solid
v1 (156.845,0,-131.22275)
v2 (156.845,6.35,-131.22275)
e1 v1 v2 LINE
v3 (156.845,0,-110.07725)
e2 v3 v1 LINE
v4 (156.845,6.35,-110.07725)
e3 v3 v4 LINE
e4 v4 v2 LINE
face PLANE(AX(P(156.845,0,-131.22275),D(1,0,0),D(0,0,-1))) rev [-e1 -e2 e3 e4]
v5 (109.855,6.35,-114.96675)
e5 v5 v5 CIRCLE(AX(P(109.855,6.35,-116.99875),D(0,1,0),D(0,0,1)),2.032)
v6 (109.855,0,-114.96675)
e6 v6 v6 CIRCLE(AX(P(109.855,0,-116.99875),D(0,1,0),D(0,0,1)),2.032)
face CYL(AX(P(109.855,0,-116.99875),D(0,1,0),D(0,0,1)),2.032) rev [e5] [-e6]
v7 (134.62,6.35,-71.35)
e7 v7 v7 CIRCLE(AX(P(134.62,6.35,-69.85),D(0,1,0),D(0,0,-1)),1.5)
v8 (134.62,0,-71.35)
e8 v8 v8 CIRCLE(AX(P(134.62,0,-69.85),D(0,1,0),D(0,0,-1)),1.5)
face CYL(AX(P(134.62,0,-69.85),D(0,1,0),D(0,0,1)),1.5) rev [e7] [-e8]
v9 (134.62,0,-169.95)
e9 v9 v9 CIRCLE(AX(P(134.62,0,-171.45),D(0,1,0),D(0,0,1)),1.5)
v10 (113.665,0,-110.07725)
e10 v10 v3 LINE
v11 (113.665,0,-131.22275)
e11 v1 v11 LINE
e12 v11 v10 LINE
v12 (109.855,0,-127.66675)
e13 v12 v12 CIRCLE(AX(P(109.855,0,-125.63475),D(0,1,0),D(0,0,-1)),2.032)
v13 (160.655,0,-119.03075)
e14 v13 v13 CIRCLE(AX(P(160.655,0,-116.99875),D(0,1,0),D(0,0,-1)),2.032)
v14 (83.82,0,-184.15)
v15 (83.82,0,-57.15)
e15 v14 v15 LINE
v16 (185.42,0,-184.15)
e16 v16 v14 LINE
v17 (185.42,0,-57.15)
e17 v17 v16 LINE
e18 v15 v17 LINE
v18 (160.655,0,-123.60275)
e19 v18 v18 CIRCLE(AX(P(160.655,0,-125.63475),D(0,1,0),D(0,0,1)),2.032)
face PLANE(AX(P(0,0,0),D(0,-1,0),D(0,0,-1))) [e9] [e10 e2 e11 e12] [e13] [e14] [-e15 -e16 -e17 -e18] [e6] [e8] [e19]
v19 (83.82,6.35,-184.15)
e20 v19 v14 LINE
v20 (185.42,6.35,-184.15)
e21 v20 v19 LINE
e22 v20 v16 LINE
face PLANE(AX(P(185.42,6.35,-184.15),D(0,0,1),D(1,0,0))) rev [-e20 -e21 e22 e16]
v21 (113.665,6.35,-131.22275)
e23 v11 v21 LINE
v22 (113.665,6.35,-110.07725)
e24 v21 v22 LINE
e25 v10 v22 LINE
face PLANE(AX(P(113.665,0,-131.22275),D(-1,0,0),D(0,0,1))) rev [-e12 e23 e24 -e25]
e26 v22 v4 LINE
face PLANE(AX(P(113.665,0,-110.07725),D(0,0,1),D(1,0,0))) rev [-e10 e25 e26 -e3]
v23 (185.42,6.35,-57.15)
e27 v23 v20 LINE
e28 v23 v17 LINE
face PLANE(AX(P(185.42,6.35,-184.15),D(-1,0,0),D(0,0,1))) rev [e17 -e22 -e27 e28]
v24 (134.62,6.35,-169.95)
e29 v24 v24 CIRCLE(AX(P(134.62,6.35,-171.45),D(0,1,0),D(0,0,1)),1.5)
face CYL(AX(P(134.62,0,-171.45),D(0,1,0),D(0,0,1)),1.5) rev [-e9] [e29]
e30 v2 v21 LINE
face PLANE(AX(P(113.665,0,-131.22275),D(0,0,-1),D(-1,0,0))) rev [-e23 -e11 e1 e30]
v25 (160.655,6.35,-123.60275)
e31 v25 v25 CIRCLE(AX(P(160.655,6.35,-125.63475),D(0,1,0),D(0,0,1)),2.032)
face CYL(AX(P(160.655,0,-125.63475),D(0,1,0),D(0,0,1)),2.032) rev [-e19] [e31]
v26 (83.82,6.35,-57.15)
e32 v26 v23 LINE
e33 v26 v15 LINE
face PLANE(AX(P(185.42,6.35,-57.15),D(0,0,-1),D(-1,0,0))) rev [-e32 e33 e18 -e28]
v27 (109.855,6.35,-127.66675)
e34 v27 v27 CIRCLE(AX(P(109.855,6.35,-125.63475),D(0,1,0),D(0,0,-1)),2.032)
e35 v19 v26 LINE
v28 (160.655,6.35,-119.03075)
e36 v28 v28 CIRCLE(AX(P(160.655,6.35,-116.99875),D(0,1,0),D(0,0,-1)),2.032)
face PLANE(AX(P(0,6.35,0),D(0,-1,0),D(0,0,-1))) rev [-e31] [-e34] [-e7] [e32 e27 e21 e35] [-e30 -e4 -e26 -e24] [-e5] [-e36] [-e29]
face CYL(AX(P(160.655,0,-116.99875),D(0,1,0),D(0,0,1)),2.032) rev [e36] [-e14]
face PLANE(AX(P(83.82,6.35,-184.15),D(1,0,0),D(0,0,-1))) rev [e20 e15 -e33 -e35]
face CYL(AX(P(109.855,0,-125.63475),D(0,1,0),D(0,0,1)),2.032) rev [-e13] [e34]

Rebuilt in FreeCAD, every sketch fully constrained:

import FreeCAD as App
import Part
import Sketcher
from FreeCAD import Vector
Q = App.Units.Quantity


def add_polygon(sketch, points):
    """Adds a closed chain of lines whose ends are joined by coincident constraints."""
    first, n = sketch.GeometryCount, len(points)
    for a, b in zip(points, points[1:] + points[:1]):
        sketch.addGeometry(Part.LineSegment(App.Vector(*a, 0), App.Vector(*b, 0)), False)
    for i in range(n):
        sketch.addConstraint(Sketcher.Constraint("Coincident", first + i, 2, first + (i + 1) % n, 1))

doc = App.newDocument("Part")
body = doc.addObject("PartDesign::Body", "Body")

# Sketch on XZ plane
sketch1 = doc.addObject("Sketcher::SketchObject", "Sketch")
body.addObject(sketch1)
sketch1.AttachmentSupport = (doc.XZ_Plane, [""])
sketch1.MapMode = "FlatFace"
add_polygon(sketch1, [(84, -184), (84, -57), (185, -57), (185, -184)])  # lines 0-3
sketch1.addConstraint([
    Sketcher.Constraint("Vertical", 0),
    Sketcher.Constraint("Horizontal", 1),
    Sketcher.Constraint("Vertical", 2),
    Sketcher.Constraint("Horizontal", 3),
    Sketcher.Constraint("DistanceX", 1, 1, 1, 2, Q("4 in")),
    Sketcher.Constraint("DistanceY", 0, 1, 0, 2, Q("5 in")),
    Sketcher.Constraint("DistanceX", -1, 1, 0, 2, Q("3.3 in")),
    Sketcher.Constraint("DistanceY", 0, 2, -1, 1, Q("2.25 in")),
])
pad1 = doc.addObject("PartDesign::Pad", "Pad")
body.addObject(pad1)
pad1.Profile = sketch1
pad1.Length = Q("0.25 in")
pad1.Reversed = True

# Sketch on XZ plane
sketch2 = doc.addObject("Sketcher::SketchObject", "Sketch001")
body.addObject(sketch2)
sketch2.AttachmentSupport = (doc.XZ_Plane, [""])
sketch2.MapMode = "FlatFace"
sketch2.AttachmentOffset = App.Placement(Vector(0, 0, -0.25 * 25.4), App.Rotation())
sketch2.addGeometry(Part.Circle(Vector(109.9, -117, 0), Vector(0, 0, 1), 2), False)  # 0
sketch2.addGeometry(Part.Circle(Vector(109.9, -125.6, 0), Vector(0, 0, 1), 2), False)  # 1
sketch2.addGeometry(Part.Circle(Vector(160.7, -125.6, 0), Vector(0, 0, 1), 2), False)  # 2
sketch2.addGeometry(Part.Circle(Vector(160.7, -117, 0), Vector(0, 0, 1), 2), False)  # 3
add_polygon(sketch2, [(113.7, -131.2), (113.7, -110.1), (156.8, -110.1), (156.8, -131.2)])  # lines 4-7
sketch2.addConstraint([
    Sketcher.Constraint("Vertical", 4),
    Sketcher.Constraint("Horizontal", 5),
    Sketcher.Constraint("Vertical", 6),
    Sketcher.Constraint("Horizontal", 7),
    Sketcher.Constraint("Equal", 0, 1),
    Sketcher.Constraint("Equal", 1, 2),
    Sketcher.Constraint("Equal", 2, 3),
    Sketcher.Constraint("Horizontal", 1, 3, 2, 3),
    Sketcher.Constraint("Horizontal", 0, 3, 3, 3),
    Sketcher.Constraint("Vertical", 0, 3, 1, 3),
    Sketcher.Constraint("Vertical", 2, 3, 3, 3),
    Sketcher.Constraint("Diameter", 0, Q("0.16 in")),
    Sketcher.Constraint("DistanceX", 5, 1, 5, 2, Q("1.7 in")),
    Sketcher.Constraint("DistanceX", 1, 3, 2, 3, Q("2 in")),
    Sketcher.Constraint("DistanceY", 1, 3, 0, 3, Q("0.34 in")),
    Sketcher.Constraint("DistanceX", 0, 3, 4, 2, Q("0.15 in")),
    Sketcher.Constraint("DistanceY", 6, 2, 2, 3, Q("0.22 in")),
    Sketcher.Constraint("DistanceY", 4, 1, 4, 2, Q("0.8325 in")),
    Sketcher.Constraint("DistanceX", -1, 1, 0, 3, Q("4.325 in")),
    Sketcher.Constraint("DistanceY", 0, 3, -1, 1, 116.99875),
])
pocket1 = doc.addObject("PartDesign::Pocket", "Pocket")
body.addObject(pocket1)
pocket1.Profile = sketch2
pocket1.Type = "ThroughAll"
pocket1.Reversed = True

# Sketch on XZ plane
sketch3 = doc.addObject("Sketcher::SketchObject", "Sketch002")
body.addObject(sketch3)
sketch3.AttachmentSupport = (doc.XZ_Plane, [""])
sketch3.MapMode = "FlatFace"
sketch3.AttachmentOffset = App.Placement(Vector(0, 0, -0.25 * 25.4), App.Rotation())
sketch3.addGeometry([
    Part.Circle(Vector(134.6, -171.4, 0), Vector(0, 0, 1), 1.5),
    Part.Circle(Vector(134.6, -69.8, 0), Vector(0, 0, 1), 1.5),
], False)
sketch3.addConstraint([
    Sketcher.Constraint("Equal", 0, 1),
    Sketcher.Constraint("Vertical", 0, 3, 1, 3),
    Sketcher.Constraint("DistanceY", 0, 3, 1, 3, Q("4 in")),
    Sketcher.Constraint("DistanceX", -1, 1, 0, 3, Q("5.3 in")),
    Sketcher.Constraint("Diameter", 0, 3.0),
    Sketcher.Constraint("DistanceY", 0, 3, -1, 1, Q("6.75 in")),
])
pocket2 = doc.addObject("PartDesign::Pocket", "Pocket001")
body.addObject(pocket2)
pocket2.Profile = sketch3
pocket2.Type = "ThroughAll"
pocket2.Reversed = True

doc.recompute()
